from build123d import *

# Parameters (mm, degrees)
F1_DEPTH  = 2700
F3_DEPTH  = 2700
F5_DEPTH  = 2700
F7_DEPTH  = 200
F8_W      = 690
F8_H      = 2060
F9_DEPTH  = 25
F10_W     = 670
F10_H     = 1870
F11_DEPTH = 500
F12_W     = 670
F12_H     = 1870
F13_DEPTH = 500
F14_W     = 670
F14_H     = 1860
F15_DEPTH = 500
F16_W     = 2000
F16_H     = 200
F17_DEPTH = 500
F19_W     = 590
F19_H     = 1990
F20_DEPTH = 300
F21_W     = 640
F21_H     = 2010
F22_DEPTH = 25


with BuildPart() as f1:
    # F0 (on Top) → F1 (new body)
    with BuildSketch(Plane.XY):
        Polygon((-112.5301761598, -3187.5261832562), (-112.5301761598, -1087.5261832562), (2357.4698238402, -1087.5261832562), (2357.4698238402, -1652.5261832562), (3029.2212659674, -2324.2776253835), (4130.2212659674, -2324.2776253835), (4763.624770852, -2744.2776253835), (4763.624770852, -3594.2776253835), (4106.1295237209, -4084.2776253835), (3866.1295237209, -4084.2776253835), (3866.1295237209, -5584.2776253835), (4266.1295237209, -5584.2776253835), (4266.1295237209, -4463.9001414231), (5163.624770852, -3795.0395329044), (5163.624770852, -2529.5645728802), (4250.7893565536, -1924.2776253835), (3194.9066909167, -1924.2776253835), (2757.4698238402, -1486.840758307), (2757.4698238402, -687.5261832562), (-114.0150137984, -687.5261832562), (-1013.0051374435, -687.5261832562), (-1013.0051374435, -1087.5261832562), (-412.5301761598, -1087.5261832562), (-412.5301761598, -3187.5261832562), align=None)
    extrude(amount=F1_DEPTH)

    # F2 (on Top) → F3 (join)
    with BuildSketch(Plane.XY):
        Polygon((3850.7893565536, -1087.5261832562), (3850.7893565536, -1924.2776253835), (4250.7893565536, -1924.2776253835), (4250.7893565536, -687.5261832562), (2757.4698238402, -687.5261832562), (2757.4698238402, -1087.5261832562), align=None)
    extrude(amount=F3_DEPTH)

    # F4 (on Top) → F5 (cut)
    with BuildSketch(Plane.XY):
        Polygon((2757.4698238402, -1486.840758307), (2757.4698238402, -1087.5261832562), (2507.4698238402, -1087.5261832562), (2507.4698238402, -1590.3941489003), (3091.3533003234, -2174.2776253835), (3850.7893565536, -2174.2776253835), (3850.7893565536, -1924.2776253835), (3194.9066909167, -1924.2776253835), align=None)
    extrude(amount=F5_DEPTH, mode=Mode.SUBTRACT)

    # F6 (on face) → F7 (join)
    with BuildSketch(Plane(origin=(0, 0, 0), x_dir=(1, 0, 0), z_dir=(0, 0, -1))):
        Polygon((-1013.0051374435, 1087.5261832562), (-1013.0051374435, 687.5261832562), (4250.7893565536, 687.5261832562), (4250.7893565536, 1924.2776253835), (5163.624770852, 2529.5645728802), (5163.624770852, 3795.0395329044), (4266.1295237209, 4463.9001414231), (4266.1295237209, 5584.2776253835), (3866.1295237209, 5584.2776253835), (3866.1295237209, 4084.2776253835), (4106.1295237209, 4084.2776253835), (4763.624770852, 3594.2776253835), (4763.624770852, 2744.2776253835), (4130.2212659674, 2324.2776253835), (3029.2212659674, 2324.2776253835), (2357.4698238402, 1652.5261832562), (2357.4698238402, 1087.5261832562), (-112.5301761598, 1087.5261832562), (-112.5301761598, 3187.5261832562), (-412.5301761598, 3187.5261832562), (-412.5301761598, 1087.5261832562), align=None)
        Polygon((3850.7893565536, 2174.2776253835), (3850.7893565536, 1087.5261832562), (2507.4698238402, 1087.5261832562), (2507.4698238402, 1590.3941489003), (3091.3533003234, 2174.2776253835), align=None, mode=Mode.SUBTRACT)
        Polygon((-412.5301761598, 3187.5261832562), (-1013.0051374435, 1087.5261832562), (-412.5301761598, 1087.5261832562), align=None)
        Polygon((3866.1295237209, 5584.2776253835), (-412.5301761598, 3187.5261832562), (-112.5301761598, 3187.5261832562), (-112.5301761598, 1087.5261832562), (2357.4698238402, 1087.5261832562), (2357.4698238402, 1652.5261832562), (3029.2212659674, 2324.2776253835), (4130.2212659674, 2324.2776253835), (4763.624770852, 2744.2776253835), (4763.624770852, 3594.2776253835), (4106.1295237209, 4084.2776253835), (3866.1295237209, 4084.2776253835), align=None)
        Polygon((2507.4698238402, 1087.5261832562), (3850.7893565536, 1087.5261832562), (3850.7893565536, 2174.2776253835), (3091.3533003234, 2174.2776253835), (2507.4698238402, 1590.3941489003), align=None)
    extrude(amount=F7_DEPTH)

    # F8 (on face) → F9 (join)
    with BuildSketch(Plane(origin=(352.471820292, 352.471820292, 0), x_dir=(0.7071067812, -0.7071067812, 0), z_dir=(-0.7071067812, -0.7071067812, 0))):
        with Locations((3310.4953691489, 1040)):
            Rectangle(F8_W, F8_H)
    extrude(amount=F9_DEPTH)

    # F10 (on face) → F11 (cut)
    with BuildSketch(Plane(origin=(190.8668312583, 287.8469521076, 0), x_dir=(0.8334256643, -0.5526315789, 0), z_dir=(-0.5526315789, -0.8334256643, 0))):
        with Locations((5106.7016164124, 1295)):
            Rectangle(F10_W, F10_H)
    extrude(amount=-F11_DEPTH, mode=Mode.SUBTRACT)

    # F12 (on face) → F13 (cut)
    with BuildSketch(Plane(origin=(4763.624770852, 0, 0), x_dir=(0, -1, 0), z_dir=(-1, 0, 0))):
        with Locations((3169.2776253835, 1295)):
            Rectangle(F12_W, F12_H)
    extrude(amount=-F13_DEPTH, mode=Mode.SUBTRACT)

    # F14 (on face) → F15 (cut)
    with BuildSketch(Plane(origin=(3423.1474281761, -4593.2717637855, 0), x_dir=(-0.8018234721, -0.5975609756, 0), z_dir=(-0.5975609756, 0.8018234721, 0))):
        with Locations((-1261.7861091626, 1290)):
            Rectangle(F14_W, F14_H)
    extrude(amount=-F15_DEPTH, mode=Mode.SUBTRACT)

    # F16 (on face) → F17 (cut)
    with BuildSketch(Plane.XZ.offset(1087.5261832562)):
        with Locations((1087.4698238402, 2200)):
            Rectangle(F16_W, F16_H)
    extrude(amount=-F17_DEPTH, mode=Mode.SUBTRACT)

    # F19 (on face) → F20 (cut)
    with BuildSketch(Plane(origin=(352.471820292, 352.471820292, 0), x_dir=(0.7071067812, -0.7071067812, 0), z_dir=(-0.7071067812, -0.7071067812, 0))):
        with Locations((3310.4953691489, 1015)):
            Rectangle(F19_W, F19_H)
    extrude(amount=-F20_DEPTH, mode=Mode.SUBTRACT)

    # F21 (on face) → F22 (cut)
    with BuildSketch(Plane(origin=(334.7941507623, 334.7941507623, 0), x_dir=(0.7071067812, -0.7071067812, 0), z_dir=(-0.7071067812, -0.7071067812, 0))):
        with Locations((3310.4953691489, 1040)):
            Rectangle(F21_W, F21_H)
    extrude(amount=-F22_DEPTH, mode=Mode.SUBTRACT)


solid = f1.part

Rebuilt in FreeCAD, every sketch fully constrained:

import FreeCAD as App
import Part
import Sketcher
from FreeCAD import Vector
Q = App.Units.Quantity

doc = App.newDocument("Part")
body = doc.addObject("PartDesign::Body", "Body")

sketch1 = body.newObject("Sketcher::SketchObject", "Sketch")
sketch1.AttachmentSupport = (doc.getObject("XY_Plane"), [""])
sketch1.MapMode = "FlatFace"
sketch1.addGeometry([
    Part.LineSegment(Vector(-113, -3188, 0), Vector(-113, -1088, 0)),
    Part.LineSegment(Vector(-113, -1088, 0), Vector(2357, -1088, 0)),
    Part.LineSegment(Vector(2357, -1088, 0), Vector(2357, -1653, 0)),
    Part.LineSegment(Vector(2357, -1653, 0), Vector(3029, -2324, 0)),
    Part.LineSegment(Vector(3029, -2324, 0), Vector(4130, -2324, 0)),
    Part.LineSegment(Vector(4130, -2324, 0), Vector(4764, -2744, 0)),
    Part.LineSegment(Vector(4764, -2744, 0), Vector(4764, -3594, 0)),
    Part.LineSegment(Vector(4764, -3594, 0), Vector(4106, -4084, 0)),
    Part.LineSegment(Vector(4106, -4084, 0), Vector(3866, -4084, 0)),
    Part.LineSegment(Vector(3866, -4084, 0), Vector(3866, -5584, 0)),
    Part.LineSegment(Vector(3866, -5584, 0), Vector(4266, -5584, 0)),
    Part.LineSegment(Vector(4266, -5584, 0), Vector(4266, -4464, 0)),
    Part.LineSegment(Vector(4266, -4464, 0), Vector(5164, -3795, 0)),
    Part.LineSegment(Vector(5164, -3795, 0), Vector(5164, -2530, 0)),
    Part.LineSegment(Vector(5164, -2530, 0), Vector(4251, -1924, 0)),
    Part.LineSegment(Vector(4251, -1924, 0), Vector(3195, -1924, 0)),
    Part.LineSegment(Vector(3195, -1924, 0), Vector(2757, -1487, 0)),
    Part.LineSegment(Vector(2757, -1487, 0), Vector(2757, -688, 0)),
    Part.LineSegment(Vector(2757, -688, 0), Vector(-1013, -688, 0)),
    Part.LineSegment(Vector(-1013, -688, 0), Vector(-1013, -1088, 0)),
    Part.LineSegment(Vector(-1013, -1088, 0), Vector(-413, -1088, 0)),
    Part.LineSegment(Vector(-413, -1088, 0), Vector(-413, -3188, 0)),
    Part.LineSegment(Vector(-413, -3188, 0), Vector(-113, -3188, 0)),
], False)
sketch1.addConstraint([
    Sketcher.Constraint("Coincident", 0, 2, 1, 1),
    Sketcher.Constraint("Coincident", 1, 2, 2, 1),
    Sketcher.Constraint("Coincident", 2, 2, 3, 1),
    Sketcher.Constraint("Coincident", 3, 2, 4, 1),
    Sketcher.Constraint("Coincident", 4, 2, 5, 1),
    Sketcher.Constraint("Coincident", 5, 2, 6, 1),
    Sketcher.Constraint("Coincident", 6, 2, 7, 1),
    Sketcher.Constraint("Coincident", 7, 2, 8, 1),
    Sketcher.Constraint("Coincident", 8, 2, 9, 1),
    Sketcher.Constraint("Coincident", 9, 2, 10, 1),
    Sketcher.Constraint("Coincident", 10, 2, 11, 1),
    Sketcher.Constraint("Coincident", 11, 2, 12, 1),
    Sketcher.Constraint("Coincident", 12, 2, 13, 1),
    Sketcher.Constraint("Coincident", 13, 2, 14, 1),
    Sketcher.Constraint("Coincident", 14, 2, 15, 1),
    Sketcher.Constraint("Coincident", 15, 2, 16, 1),
    Sketcher.Constraint("Coincident", 16, 2, 17, 1),
    Sketcher.Constraint("Coincident", 17, 2, 18, 1),
    Sketcher.Constraint("Coincident", 18, 2, 19, 1),
    Sketcher.Constraint("Coincident", 19, 2, 20, 1),
    Sketcher.Constraint("Coincident", 20, 2, 21, 1),
    Sketcher.Constraint("Coincident", 21, 2, 22, 1),
    Sketcher.Constraint("Coincident", 22, 2, 0, 1),
    Sketcher.Constraint("Vertical", 0),
    Sketcher.Constraint("Horizontal", 1),
    Sketcher.Constraint("Vertical", 2),
    Sketcher.Constraint("Horizontal", 4),
    Sketcher.Constraint("Vertical", 6),
    Sketcher.Constraint("Horizontal", 8),
    Sketcher.Constraint("Vertical", 9),
    Sketcher.Constraint("Horizontal", 10),
    Sketcher.Constraint("Vertical", 11),
    Sketcher.Constraint("Vertical", 13),
    Sketcher.Constraint("Horizontal", 15),
    Sketcher.Constraint("Vertical", 17),
    Sketcher.Constraint("Horizontal", 18),
    Sketcher.Constraint("Vertical", 19),
    Sketcher.Constraint("Horizontal", 20),
    Sketcher.Constraint("Vertical", 21),
    Sketcher.Constraint("Horizontal", 22),
    Sketcher.Constraint("Parallel", 7, 12),
    Sketcher.Constraint("Parallel", 5, 14),
    Sketcher.Constraint("Parallel", 3, 16),
    Sketcher.Constraint("Horizontal", 1, 2, 19, 2),
    Sketcher.Constraint("Equal", 10, 19),
    Sketcher.Constraint("DistanceX", 1, 1, 1, 2, 2470.0),
    Sketcher.Constraint("DistanceX", 4, 1, 4, 2, 1101.0),
    Sketcher.Constraint("DistanceX", 8, 2, 8, 1, 240.0),
    Sketcher.Constraint("DistanceX", 10, 1, 10, 2, 400.0),
    Sketcher.Constraint("DistanceX", 22, 1, 22, 2, 300.0),
    Sketcher.Constraint("DistanceY", 0, 1, 0, 2, 2100.0),
    Sketcher.Constraint("DistanceY", 2, 2, 2, 1, 565.0),
    Sketcher.Constraint("DistanceY", 6, 2, 6, 1, 850.0),
    Sketcher.Constraint("DistanceY", 9, 2, 9, 1, 1500.0),
    Sketcher.Constraint("Angle", 3, Q("-45 deg")),
    Sketcher.Constraint("Distance", 3, 950.0),
    Sketcher.Constraint("Distance", 5, 760.0),
    Sketcher.Constraint("Distance", 7, 820.0),
    Sketcher.Constraint("DistanceY", 5, 2, 4, 2, 420.0),
    Sketcher.Constraint("DistanceY", 7, 2, 6, 2, 490.0),
    Sketcher.Constraint("DistanceX", 6, 2, 12, 2, 400.0),
    Sketcher.Constraint("DistanceY", 4, 2, 14, 2, 400.0),
    Sketcher.Constraint("DistanceX", 2, 2, 16, 2, 400.0),
    Sketcher.Constraint("DistanceX", 18, 2, 18, 1, 3770.474961),
    Sketcher.Constraint("DistanceY", 13, 1, 13, 2, 1265.47496),
    Sketcher.Constraint("Distance", 16, 618.62915),
    Sketcher.Constraint("DistanceX", 15, 2, 15, 1, 1055.882666),
    Sketcher.Constraint("DistanceX", -1, 1, 5, 2, 4763.624771),
    Sketcher.Constraint("DistanceY", 11, 2, -1, 1, 4463.900141),
])
pad1 = body.newObject("PartDesign::Pad", "Pad")
pad1.Profile = sketch1
pad1.Length = 2700

sketch2 = body.newObject("Sketcher::SketchObject", "Sketch001")
sketch2.AttachmentSupport = (doc.getObject("XY_Plane"), [""])
sketch2.MapMode = "FlatFace"
sketch2.addGeometry([
    Part.LineSegment(Vector(3851, -1088, 0), Vector(3851, -1924, 0)),
    Part.LineSegment(Vector(3851, -1924, 0), Vector(4251, -1924, 0)),
    Part.LineSegment(Vector(4251, -1924, 0), Vector(4251, -688, 0)),
    Part.LineSegment(Vector(4251, -688, 0), Vector(2757, -688, 0)),
    Part.LineSegment(Vector(2757, -688, 0), Vector(2757, -1088, 0)),
    Part.LineSegment(Vector(2757, -1088, 0), Vector(3851, -1088, 0)),
], False)
sketch2.addConstraint([
    Sketcher.Constraint("Coincident", 0, 2, 1, 1),
    Sketcher.Constraint("Coincident", 1, 2, 2, 1),
    Sketcher.Constraint("Coincident", 2, 2, 3, 1),
    Sketcher.Constraint("Coincident", 3, 2, 4, 1),
    Sketcher.Constraint("Coincident", 4, 2, 5, 1),
    Sketcher.Constraint("Coincident", 5, 2, 0, 1),
    Sketcher.Constraint("Vertical", 0),
    Sketcher.Constraint("Horizontal", 1),
    Sketcher.Constraint("Vertical", 2),
    Sketcher.Constraint("Horizontal", 3),
    Sketcher.Constraint("Vertical", 4),
    Sketcher.Constraint("Horizontal", 5),
    Sketcher.Constraint("Equal", 1, 4),
    Sketcher.Constraint("DistanceX", 1, 1, 1, 2, 400.0),
    Sketcher.Constraint("DistanceX", 3, 2, 3, 1, 1493.319533),
    Sketcher.Constraint("DistanceY", 0, 2, 0, 1, 836.751442),
    Sketcher.Constraint("DistanceX", -1, 1, 0, 2, 3850.789357),
    Sketcher.Constraint("DistanceY", 0, 2, -1, 1, 1924.277625),
])
pad2 = body.newObject("PartDesign::Pad", "Pad001")
pad2.Profile = sketch2
pad2.Length = 2700

sketch3 = body.newObject("Sketcher::SketchObject", "Sketch002")
sketch3.AttachmentSupport = (doc.getObject("XY_Plane"), [""])
sketch3.MapMode = "FlatFace"
sketch3.addGeometry([
    Part.LineSegment(Vector(2757, -1487, 0), Vector(2757, -1088, 0)),
    Part.LineSegment(Vector(2757, -1088, 0), Vector(2507, -1088, 0)),
    Part.LineSegment(Vector(2507, -1088, 0), Vector(2507, -1590, 0)),
    Part.LineSegment(Vector(2507, -1590, 0), Vector(3091, -2174, 0)),
    Part.LineSegment(Vector(3091, -2174, 0), Vector(3851, -2174, 0)),
    Part.LineSegment(Vector(3851, -2174, 0), Vector(3851, -1924, 0)),
    Part.LineSegment(Vector(3851, -1924, 0), Vector(3195, -1924, 0)),
    Part.LineSegment(Vector(3195, -1924, 0), Vector(2757, -1487, 0)),
], False)
sketch3.addConstraint([
    Sketcher.Constraint("Coincident", 0, 2, 1, 1),
    Sketcher.Constraint("Coincident", 1, 2, 2, 1),
    Sketcher.Constraint("Coincident", 2, 2, 3, 1),
    Sketcher.Constraint("Coincident", 3, 2, 4, 1),
    Sketcher.Constraint("Coincident", 4, 2, 5, 1),
    Sketcher.Constraint("Coincident", 5, 2, 6, 1),
    Sketcher.Constraint("Coincident", 6, 2, 7, 1),
    Sketcher.Constraint("Coincident", 7, 2, 0, 1),
    Sketcher.Constraint("Vertical", 0),
    Sketcher.Constraint("Horizontal", 1),
    Sketcher.Constraint("Vertical", 2),
    Sketcher.Constraint("Horizontal", 4),
    Sketcher.Constraint("Vertical", 5),
    Sketcher.Constraint("Horizontal", 6),
    Sketcher.Constraint("Parallel", 3, 7),
    Sketcher.Constraint("Equal", 1, 5),
    Sketcher.Constraint("DistanceX", 1, 2, 1, 1, 250.0),
    Sketcher.Constraint("Angle", 3, Q("-45 deg")),
    Sketcher.Constraint("DistanceX", -1, 1, 3, 2, 3091.3533),
    Sketcher.Constraint("Distance", 3, 825.735931),
    Sketcher.Constraint("Distance", 7, 618.62915),
    Sketcher.Constraint("DistanceX", 4, 1, 4, 2, 759.436056),
    Sketcher.Constraint("DistanceY", 0, 1, 0, 2, 399.314575),
    Sketcher.Constraint("DistanceY", 2, 2, -1, 1, 1590.394149),
])
pocket1 = body.newObject("PartDesign::Pocket", "Pocket")
pocket1.Profile = sketch3
pocket1.Length = 2700
pocket1.Reversed = True

sketch4 = body.newObject("Sketcher::SketchObject", "Sketch003")
sketch4.AttachmentSupport = (doc.getObject("XY_Plane"), [""])
sketch4.MapMode = "FlatFace"
sketch4.addGeometry([
    Part.LineSegment(Vector(-1013, -1088, 0), Vector(-1013, -688, 0)),
    Part.LineSegment(Vector(-1013, -688, 0), Vector(4251, -688, 0)),
    Part.LineSegment(Vector(4251, -688, 0), Vector(4251, -1924, 0)),
    Part.LineSegment(Vector(4251, -1924, 0), Vector(5164, -2530, 0)),
    Part.LineSegment(Vector(5164, -2530, 0), Vector(5164, -3795, 0)),
    Part.LineSegment(Vector(5164, -3795, 0), Vector(4266, -4464, 0)),
    Part.LineSegment(Vector(4266, -4464, 0), Vector(4266, -5584, 0)),
    Part.LineSegment(Vector(4266, -5584, 0), Vector(3866, -5584, 0)),
    Part.LineSegment(Vector(3866, -5584, 0), Vector(-413, -3188, 0)),
    Part.LineSegment(Vector(-413, -3188, 0), Vector(-1013, -1088, 0)),
], False)
sketch4.addConstraint([
    Sketcher.Constraint("Coincident", 0, 2, 1, 1),
    Sketcher.Constraint("Coincident", 1, 2, 2, 1),
    Sketcher.Constraint("Coincident", 2, 2, 3, 1),
    Sketcher.Constraint("Coincident", 3, 2, 4, 1),
    Sketcher.Constraint("Coincident", 4, 2, 5, 1),
    Sketcher.Constraint("Coincident", 5, 2, 6, 1),
    Sketcher.Constraint("Coincident", 6, 2, 7, 1),
    Sketcher.Constraint("Coincident", 7, 2, 8, 1),
    Sketcher.Constraint("Coincident", 8, 2, 9, 1),
    Sketcher.Constraint("Coincident", 9, 2, 0, 1),
    Sketcher.Constraint("Vertical", 0),
    Sketcher.Constraint("Horizontal", 1),
    Sketcher.Constraint("Vertical", 2),
    Sketcher.Constraint("Vertical", 4),
    Sketcher.Constraint("Vertical", 6),
    Sketcher.Constraint("Horizontal", 7),
    Sketcher.Constraint("Equal", 7, 0),
    Sketcher.Constraint("DistanceX", 7, 2, 7, 1, 400.0),
    Sketcher.Constraint("DistanceY", 6, 2, 2, 2, 3660.0),
    Sketcher.Constraint("DistanceY", 8, 2, 0, 2, 2500.0),
    Sketcher.Constraint("DistanceY", 4, 2, 4, 1, 1265.47496),
    Sketcher.Constraint("DistanceX", 8, 2, 5, 2, 4678.6597),
    Sketcher.Constraint("DistanceX", 1, 1, 1, 2, 5263.794494),
    Sketcher.Constraint("DistanceY", 2, 2, 2, 1, 1236.751442),
    Sketcher.Constraint("DistanceY", 6, 2, 6, 1, 1120.377484),
    Sketcher.Constraint("DistanceX", -1, 1, 3, 2, 5163.624771),
    Sketcher.Constraint("DistanceY", 5, 2, -1, 1, 4463.900141),
    Sketcher.Constraint("DistanceY", 3, 2, 1, 2, 1842.03839),
    Sketcher.Constraint("DistanceX", 0, 2, 3, 2, 6176.629908),
    Sketcher.Constraint("DistanceX", 0, 2, 5, 2, 5279.134661),
])
pad3 = body.newObject("PartDesign::Pad", "Pad002")
pad3.Profile = sketch4
pad3.Length = 200
pad3.Reversed = True

sketch5 = body.newObject("Sketcher::SketchObject", "Sketch004")
sketch5.Placement = App.Placement(Vector(352.47182, 352.47182, 0), App.Rotation(Vector(0.707106781, -0.707106781, 0), Vector(0, 0, 0.999999999), Vector(-0.707106781, -0.707106781, 0), "ZXY"))
sketch5.addGeometry([
    Part.LineSegment(Vector(2965, 2070, 0), Vector(2965, 10, 0)),
    Part.LineSegment(Vector(2965, 10, 0), Vector(3655, 10, 0)),
    Part.LineSegment(Vector(3655, 10, 0), Vector(3655, 2070, 0)),
    Part.LineSegment(Vector(3655, 2070, 0), Vector(2965, 2070, 0)),
], False)
sketch5.addConstraint([
    Sketcher.Constraint("Coincident", 0, 2, 1, 1),
    Sketcher.Constraint("Coincident", 1, 2, 2, 1),
    Sketcher.Constraint("Coincident", 2, 2, 3, 1),
    Sketcher.Constraint("Coincident", 3, 2, 0, 1),
    Sketcher.Constraint("Vertical", 0),
    Sketcher.Constraint("Horizontal", 1),
    Sketcher.Constraint("Vertical", 2),
    Sketcher.Constraint("Horizontal", 3),
    Sketcher.Constraint("DistanceX", 1, 1, 1, 2, 690.0),
    Sketcher.Constraint("DistanceY", -1, 1, 0, 2, 10.0),
    Sketcher.Constraint("DistanceY", 0, 2, 0, 1, 2059.999998),
    Sketcher.Constraint("DistanceX", -1, 1, 0, 2, 2965.495368),
])
pad4 = body.newObject("PartDesign::Pad", "Pad003")
pad4.Profile = sketch5
pad4.Length = 25

sketch6 = body.newObject("Sketcher::SketchObject", "Sketch005")
sketch6.Placement = App.Placement(Vector(190.866831, 287.846952, 0), App.Rotation(Vector(0.833425664, -0.552631579, 0), Vector(0, 0, 1), Vector(-0.552631579, -0.833425664, 0), "ZXY"))
sketch6.addGeometry([
    Part.LineSegment(Vector(4772, 2230, 0), Vector(4772, 360, 0)),
    Part.LineSegment(Vector(4772, 360, 0), Vector(5442, 360, 0)),
    Part.LineSegment(Vector(5442, 360, 0), Vector(5442, 2230, 0)),
    Part.LineSegment(Vector(5442, 2230, 0), Vector(4772, 2230, 0)),
], False)
sketch6.addConstraint([
    Sketcher.Constraint("Coincident", 0, 2, 1, 1),
    Sketcher.Constraint("Coincident", 1, 2, 2, 1),
    Sketcher.Constraint("Coincident", 2, 2, 3, 1),
    Sketcher.Constraint("Coincident", 3, 2, 0, 1),
    Sketcher.Constraint("Vertical", 0),
    Sketcher.Constraint("Horizontal", 1),
    Sketcher.Constraint("Vertical", 2),
    Sketcher.Constraint("Horizontal", 3),
    Sketcher.Constraint("DistanceX", 1, 1, 1, 2, 670.0),
    Sketcher.Constraint("DistanceY", 0, 2, 0, 1, 1869.999998),
    Sketcher.Constraint("DistanceY", -1, 1, 0, 2, 360.0),
    Sketcher.Constraint("DistanceX", -1, 1, 0, 2, 4771.701614),
])
pocket2 = body.newObject("PartDesign::Pocket", "Pocket001")
pocket2.Profile = sketch6
pocket2.Length = 500

sketch7 = body.newObject("Sketcher::SketchObject", "Sketch006")
sketch7.AttachmentSupport = (doc.getObject("YZ_Plane"), [""])
sketch7.MapMode = "FlatFace"
sketch7.AttachmentOffset = App.Placement(Vector(0, 0, 4763.624771), App.Rotation())
sketch7.addGeometry([
    Part.LineSegment(Vector(-2834, 2230, 0), Vector(-2834, 360, 0)),
    Part.LineSegment(Vector(-2834, 360, 0), Vector(-3504, 360, 0)),
    Part.LineSegment(Vector(-3504, 360, 0), Vector(-3504, 2230, 0)),
    Part.LineSegment(Vector(-3504, 2230, 0), Vector(-2834, 2230, 0)),
], False)
sketch7.addConstraint([
    Sketcher.Constraint("Coincident", 0, 2, 1, 1),
    Sketcher.Constraint("Coincident", 1, 2, 2, 1),
    Sketcher.Constraint("Coincident", 2, 2, 3, 1),
    Sketcher.Constraint("Coincident", 3, 2, 0, 1),
    Sketcher.Constraint("Vertical", 0),
    Sketcher.Constraint("Horizontal", 1),
    Sketcher.Constraint("Vertical", 2),
    Sketcher.Constraint("Horizontal", 3),
    Sketcher.Constraint("DistanceX", 1, 2, 1, 1, 670.0),
    Sketcher.Constraint("DistanceY", 0, 2, 0, 1, 1870.0),
    Sketcher.Constraint("DistanceY", -1, 1, 0, 2, 360.0),
    Sketcher.Constraint("DistanceX", 0, 2, -1, 1, 2834.277625),
])
pocket3 = body.newObject("PartDesign::Pocket", "Pocket002")
pocket3.Profile = sketch7
pocket3.Length = 500
pocket3.Reversed = True

sketch8 = body.newObject("Sketcher::SketchObject", "Sketch007")
sketch8.Placement = App.Placement(Vector(3423.147428, -4593.271764, 0), App.Rotation(Vector(-0.801823472, -0.597560976, 0), Vector(0, 0, 1), Vector(-0.597560976, 0.801823472, 0), "ZXY"))
sketch8.addGeometry([
    Part.LineSegment(Vector(-1597, 2220, 0), Vector(-1597, 360, 0)),
    Part.LineSegment(Vector(-1597, 360, 0), Vector(-927, 360, 0)),
    Part.LineSegment(Vector(-927, 360, 0), Vector(-927, 2220, 0)),
    Part.LineSegment(Vector(-927, 2220, 0), Vector(-1597, 2220, 0)),
], False)
sketch8.addConstraint([
    Sketcher.Constraint("Coincident", 0, 2, 1, 1),
    Sketcher.Constraint("Coincident", 1, 2, 2, 1),
    Sketcher.Constraint("Coincident", 2, 2, 3, 1),
    Sketcher.Constraint("Coincident", 3, 2, 0, 1),
    Sketcher.Constraint("Vertical", 0),
    Sketcher.Constraint("Horizontal", 1),
    Sketcher.Constraint("Vertical", 2),
    Sketcher.Constraint("Horizontal", 3),
    Sketcher.Constraint("DistanceX", 1, 1, 1, 2, 670.0),
    Sketcher.Constraint("DistanceY", 0, 2, 0, 1, 1860.000001),
    Sketcher.Constraint("DistanceY", -1, 1, 0, 2, 360.0),
    Sketcher.Constraint("DistanceX", 0, 2, -1, 1, 1596.78611),
])
pocket4 = body.newObject("PartDesign::Pocket", "Pocket003")
pocket4.Profile = sketch8
pocket4.Length = 500

sketch9 = body.newObject("Sketcher::SketchObject", "Sketch008")
sketch9.AttachmentSupport = (doc.getObject("XZ_Plane"), [""])
sketch9.MapMode = "FlatFace"
sketch9.AttachmentOffset = App.Placement(Vector(0, 0, 1087.526183), App.Rotation())
sketch9.addGeometry([
    Part.LineSegment(Vector(87, 2300, 0), Vector(87, 2100, 0)),
    Part.LineSegment(Vector(87, 2100, 0), Vector(2087, 2100, 0)),
    Part.LineSegment(Vector(2087, 2100, 0), Vector(2087, 2300, 0)),
    Part.LineSegment(Vector(2087, 2300, 0), Vector(87, 2300, 0)),
], False)
sketch9.addConstraint([
    Sketcher.Constraint("Coincident", 0, 2, 1, 1),
    Sketcher.Constraint("Coincident", 1, 2, 2, 1),
    Sketcher.Constraint("Coincident", 2, 2, 3, 1),
    Sketcher.Constraint("Coincident", 3, 2, 0, 1),
    Sketcher.Constraint("Vertical", 0),
    Sketcher.Constraint("Horizontal", 1),
    Sketcher.Constraint("Vertical", 2),
    Sketcher.Constraint("Horizontal", 3),
    Sketcher.Constraint("DistanceX", 1, 1, 1, 2, 2000.0),
    Sketcher.Constraint("DistanceY", 0, 2, 0, 1, 200.0),
    Sketcher.Constraint("DistanceY", -1, 1, 0, 2, 2100.0),
    Sketcher.Constraint("DistanceX", -1, 1, 0, 2, 87.469824),
])
pocket5 = body.newObject("PartDesign::Pocket", "Pocket004")
pocket5.Profile = sketch9
pocket5.Length = 500

sketch10 = body.newObject("Sketcher::SketchObject", "Sketch009")
sketch10.Placement = App.Placement(Vector(352.47182, 352.47182, 0), App.Rotation(Vector(0.707106781, -0.707106781, 0), Vector(0, 0, 0.999999999), Vector(-0.707106781, -0.707106781, 0), "ZXY"))
sketch10.addGeometry([
    Part.LineSegment(Vector(3015, 2010, 0), Vector(3015, 20, 0)),
    Part.LineSegment(Vector(3015, 20, 0), Vector(3605, 20, 0)),
    Part.LineSegment(Vector(3605, 20, 0), Vector(3605, 2010, 0)),
    Part.LineSegment(Vector(3605, 2010, 0), Vector(3015, 2010, 0)),
], False)
sketch10.addConstraint([
    Sketcher.Constraint("Coincident", 0, 2, 1, 1),
    Sketcher.Constraint("Coincident", 1, 2, 2, 1),
    Sketcher.Constraint("Coincident", 2, 2, 3, 1),
    Sketcher.Constraint("Coincident", 3, 2, 0, 1),
    Sketcher.Constraint("Vertical", 0),
    Sketcher.Constraint("Horizontal", 1),
    Sketcher.Constraint("Vertical", 2),
    Sketcher.Constraint("Horizontal", 3),
    Sketcher.Constraint("DistanceX", 1, 1, 1, 2, 590.0),
    Sketcher.Constraint("DistanceY", -1, 1, 0, 2, 20.0),
    Sketcher.Constraint("DistanceY", 0, 2, 0, 1, 1989.999998),
    Sketcher.Constraint("DistanceX", -1, 1, 0, 2, 3015.495368),
])
pocket6 = body.newObject("PartDesign::Pocket", "Pocket005")
pocket6.Profile = sketch10
pocket6.Length = 300

sketch11 = body.newObject("Sketcher::SketchObject", "Sketch010")
sketch11.Placement = App.Placement(Vector(334.794151, 334.794151, 0), App.Rotation(Vector(0.707106781, -0.707106781, 0), Vector(0, 0, 0.999999999), Vector(-0.707106781, -0.707106781, 0), "ZXY"))
sketch11.addGeometry([
    Part.LineSegment(Vector(2990, 2045, 0), Vector(2990, 35, 0)),
    Part.LineSegment(Vector(2990, 35, 0), Vector(3630, 35, 0)),
    Part.LineSegment(Vector(3630, 35, 0), Vector(3630, 2045, 0)),
    Part.LineSegment(Vector(3630, 2045, 0), Vector(2990, 2045, 0)),
], False)
sketch11.addConstraint([
    Sketcher.Constraint("Coincident", 0, 2, 1, 1),
    Sketcher.Constraint("Coincident", 1, 2, 2, 1),
    Sketcher.Constraint("Coincident", 2, 2, 3, 1),
    Sketcher.Constraint("Coincident", 3, 2, 0, 1),
    Sketcher.Constraint("Vertical", 0),
    Sketcher.Constraint("Horizontal", 1),
    Sketcher.Constraint("Vertical", 2),
    Sketcher.Constraint("Horizontal", 3),
    Sketcher.Constraint("DistanceX", 1, 1, 1, 2, 640.0),
    Sketcher.Constraint("DistanceY", -1, 1, 0, 2, 35.0),
    Sketcher.Constraint("DistanceY", 0, 2, 0, 1, 2009.999998),
    Sketcher.Constraint("DistanceX", -1, 1, 0, 2, 2990.495368),
])
pocket7 = body.newObject("PartDesign::Pocket", "Pocket006")
pocket7.Profile = sketch11
pocket7.Length = 25

doc.recompute()
